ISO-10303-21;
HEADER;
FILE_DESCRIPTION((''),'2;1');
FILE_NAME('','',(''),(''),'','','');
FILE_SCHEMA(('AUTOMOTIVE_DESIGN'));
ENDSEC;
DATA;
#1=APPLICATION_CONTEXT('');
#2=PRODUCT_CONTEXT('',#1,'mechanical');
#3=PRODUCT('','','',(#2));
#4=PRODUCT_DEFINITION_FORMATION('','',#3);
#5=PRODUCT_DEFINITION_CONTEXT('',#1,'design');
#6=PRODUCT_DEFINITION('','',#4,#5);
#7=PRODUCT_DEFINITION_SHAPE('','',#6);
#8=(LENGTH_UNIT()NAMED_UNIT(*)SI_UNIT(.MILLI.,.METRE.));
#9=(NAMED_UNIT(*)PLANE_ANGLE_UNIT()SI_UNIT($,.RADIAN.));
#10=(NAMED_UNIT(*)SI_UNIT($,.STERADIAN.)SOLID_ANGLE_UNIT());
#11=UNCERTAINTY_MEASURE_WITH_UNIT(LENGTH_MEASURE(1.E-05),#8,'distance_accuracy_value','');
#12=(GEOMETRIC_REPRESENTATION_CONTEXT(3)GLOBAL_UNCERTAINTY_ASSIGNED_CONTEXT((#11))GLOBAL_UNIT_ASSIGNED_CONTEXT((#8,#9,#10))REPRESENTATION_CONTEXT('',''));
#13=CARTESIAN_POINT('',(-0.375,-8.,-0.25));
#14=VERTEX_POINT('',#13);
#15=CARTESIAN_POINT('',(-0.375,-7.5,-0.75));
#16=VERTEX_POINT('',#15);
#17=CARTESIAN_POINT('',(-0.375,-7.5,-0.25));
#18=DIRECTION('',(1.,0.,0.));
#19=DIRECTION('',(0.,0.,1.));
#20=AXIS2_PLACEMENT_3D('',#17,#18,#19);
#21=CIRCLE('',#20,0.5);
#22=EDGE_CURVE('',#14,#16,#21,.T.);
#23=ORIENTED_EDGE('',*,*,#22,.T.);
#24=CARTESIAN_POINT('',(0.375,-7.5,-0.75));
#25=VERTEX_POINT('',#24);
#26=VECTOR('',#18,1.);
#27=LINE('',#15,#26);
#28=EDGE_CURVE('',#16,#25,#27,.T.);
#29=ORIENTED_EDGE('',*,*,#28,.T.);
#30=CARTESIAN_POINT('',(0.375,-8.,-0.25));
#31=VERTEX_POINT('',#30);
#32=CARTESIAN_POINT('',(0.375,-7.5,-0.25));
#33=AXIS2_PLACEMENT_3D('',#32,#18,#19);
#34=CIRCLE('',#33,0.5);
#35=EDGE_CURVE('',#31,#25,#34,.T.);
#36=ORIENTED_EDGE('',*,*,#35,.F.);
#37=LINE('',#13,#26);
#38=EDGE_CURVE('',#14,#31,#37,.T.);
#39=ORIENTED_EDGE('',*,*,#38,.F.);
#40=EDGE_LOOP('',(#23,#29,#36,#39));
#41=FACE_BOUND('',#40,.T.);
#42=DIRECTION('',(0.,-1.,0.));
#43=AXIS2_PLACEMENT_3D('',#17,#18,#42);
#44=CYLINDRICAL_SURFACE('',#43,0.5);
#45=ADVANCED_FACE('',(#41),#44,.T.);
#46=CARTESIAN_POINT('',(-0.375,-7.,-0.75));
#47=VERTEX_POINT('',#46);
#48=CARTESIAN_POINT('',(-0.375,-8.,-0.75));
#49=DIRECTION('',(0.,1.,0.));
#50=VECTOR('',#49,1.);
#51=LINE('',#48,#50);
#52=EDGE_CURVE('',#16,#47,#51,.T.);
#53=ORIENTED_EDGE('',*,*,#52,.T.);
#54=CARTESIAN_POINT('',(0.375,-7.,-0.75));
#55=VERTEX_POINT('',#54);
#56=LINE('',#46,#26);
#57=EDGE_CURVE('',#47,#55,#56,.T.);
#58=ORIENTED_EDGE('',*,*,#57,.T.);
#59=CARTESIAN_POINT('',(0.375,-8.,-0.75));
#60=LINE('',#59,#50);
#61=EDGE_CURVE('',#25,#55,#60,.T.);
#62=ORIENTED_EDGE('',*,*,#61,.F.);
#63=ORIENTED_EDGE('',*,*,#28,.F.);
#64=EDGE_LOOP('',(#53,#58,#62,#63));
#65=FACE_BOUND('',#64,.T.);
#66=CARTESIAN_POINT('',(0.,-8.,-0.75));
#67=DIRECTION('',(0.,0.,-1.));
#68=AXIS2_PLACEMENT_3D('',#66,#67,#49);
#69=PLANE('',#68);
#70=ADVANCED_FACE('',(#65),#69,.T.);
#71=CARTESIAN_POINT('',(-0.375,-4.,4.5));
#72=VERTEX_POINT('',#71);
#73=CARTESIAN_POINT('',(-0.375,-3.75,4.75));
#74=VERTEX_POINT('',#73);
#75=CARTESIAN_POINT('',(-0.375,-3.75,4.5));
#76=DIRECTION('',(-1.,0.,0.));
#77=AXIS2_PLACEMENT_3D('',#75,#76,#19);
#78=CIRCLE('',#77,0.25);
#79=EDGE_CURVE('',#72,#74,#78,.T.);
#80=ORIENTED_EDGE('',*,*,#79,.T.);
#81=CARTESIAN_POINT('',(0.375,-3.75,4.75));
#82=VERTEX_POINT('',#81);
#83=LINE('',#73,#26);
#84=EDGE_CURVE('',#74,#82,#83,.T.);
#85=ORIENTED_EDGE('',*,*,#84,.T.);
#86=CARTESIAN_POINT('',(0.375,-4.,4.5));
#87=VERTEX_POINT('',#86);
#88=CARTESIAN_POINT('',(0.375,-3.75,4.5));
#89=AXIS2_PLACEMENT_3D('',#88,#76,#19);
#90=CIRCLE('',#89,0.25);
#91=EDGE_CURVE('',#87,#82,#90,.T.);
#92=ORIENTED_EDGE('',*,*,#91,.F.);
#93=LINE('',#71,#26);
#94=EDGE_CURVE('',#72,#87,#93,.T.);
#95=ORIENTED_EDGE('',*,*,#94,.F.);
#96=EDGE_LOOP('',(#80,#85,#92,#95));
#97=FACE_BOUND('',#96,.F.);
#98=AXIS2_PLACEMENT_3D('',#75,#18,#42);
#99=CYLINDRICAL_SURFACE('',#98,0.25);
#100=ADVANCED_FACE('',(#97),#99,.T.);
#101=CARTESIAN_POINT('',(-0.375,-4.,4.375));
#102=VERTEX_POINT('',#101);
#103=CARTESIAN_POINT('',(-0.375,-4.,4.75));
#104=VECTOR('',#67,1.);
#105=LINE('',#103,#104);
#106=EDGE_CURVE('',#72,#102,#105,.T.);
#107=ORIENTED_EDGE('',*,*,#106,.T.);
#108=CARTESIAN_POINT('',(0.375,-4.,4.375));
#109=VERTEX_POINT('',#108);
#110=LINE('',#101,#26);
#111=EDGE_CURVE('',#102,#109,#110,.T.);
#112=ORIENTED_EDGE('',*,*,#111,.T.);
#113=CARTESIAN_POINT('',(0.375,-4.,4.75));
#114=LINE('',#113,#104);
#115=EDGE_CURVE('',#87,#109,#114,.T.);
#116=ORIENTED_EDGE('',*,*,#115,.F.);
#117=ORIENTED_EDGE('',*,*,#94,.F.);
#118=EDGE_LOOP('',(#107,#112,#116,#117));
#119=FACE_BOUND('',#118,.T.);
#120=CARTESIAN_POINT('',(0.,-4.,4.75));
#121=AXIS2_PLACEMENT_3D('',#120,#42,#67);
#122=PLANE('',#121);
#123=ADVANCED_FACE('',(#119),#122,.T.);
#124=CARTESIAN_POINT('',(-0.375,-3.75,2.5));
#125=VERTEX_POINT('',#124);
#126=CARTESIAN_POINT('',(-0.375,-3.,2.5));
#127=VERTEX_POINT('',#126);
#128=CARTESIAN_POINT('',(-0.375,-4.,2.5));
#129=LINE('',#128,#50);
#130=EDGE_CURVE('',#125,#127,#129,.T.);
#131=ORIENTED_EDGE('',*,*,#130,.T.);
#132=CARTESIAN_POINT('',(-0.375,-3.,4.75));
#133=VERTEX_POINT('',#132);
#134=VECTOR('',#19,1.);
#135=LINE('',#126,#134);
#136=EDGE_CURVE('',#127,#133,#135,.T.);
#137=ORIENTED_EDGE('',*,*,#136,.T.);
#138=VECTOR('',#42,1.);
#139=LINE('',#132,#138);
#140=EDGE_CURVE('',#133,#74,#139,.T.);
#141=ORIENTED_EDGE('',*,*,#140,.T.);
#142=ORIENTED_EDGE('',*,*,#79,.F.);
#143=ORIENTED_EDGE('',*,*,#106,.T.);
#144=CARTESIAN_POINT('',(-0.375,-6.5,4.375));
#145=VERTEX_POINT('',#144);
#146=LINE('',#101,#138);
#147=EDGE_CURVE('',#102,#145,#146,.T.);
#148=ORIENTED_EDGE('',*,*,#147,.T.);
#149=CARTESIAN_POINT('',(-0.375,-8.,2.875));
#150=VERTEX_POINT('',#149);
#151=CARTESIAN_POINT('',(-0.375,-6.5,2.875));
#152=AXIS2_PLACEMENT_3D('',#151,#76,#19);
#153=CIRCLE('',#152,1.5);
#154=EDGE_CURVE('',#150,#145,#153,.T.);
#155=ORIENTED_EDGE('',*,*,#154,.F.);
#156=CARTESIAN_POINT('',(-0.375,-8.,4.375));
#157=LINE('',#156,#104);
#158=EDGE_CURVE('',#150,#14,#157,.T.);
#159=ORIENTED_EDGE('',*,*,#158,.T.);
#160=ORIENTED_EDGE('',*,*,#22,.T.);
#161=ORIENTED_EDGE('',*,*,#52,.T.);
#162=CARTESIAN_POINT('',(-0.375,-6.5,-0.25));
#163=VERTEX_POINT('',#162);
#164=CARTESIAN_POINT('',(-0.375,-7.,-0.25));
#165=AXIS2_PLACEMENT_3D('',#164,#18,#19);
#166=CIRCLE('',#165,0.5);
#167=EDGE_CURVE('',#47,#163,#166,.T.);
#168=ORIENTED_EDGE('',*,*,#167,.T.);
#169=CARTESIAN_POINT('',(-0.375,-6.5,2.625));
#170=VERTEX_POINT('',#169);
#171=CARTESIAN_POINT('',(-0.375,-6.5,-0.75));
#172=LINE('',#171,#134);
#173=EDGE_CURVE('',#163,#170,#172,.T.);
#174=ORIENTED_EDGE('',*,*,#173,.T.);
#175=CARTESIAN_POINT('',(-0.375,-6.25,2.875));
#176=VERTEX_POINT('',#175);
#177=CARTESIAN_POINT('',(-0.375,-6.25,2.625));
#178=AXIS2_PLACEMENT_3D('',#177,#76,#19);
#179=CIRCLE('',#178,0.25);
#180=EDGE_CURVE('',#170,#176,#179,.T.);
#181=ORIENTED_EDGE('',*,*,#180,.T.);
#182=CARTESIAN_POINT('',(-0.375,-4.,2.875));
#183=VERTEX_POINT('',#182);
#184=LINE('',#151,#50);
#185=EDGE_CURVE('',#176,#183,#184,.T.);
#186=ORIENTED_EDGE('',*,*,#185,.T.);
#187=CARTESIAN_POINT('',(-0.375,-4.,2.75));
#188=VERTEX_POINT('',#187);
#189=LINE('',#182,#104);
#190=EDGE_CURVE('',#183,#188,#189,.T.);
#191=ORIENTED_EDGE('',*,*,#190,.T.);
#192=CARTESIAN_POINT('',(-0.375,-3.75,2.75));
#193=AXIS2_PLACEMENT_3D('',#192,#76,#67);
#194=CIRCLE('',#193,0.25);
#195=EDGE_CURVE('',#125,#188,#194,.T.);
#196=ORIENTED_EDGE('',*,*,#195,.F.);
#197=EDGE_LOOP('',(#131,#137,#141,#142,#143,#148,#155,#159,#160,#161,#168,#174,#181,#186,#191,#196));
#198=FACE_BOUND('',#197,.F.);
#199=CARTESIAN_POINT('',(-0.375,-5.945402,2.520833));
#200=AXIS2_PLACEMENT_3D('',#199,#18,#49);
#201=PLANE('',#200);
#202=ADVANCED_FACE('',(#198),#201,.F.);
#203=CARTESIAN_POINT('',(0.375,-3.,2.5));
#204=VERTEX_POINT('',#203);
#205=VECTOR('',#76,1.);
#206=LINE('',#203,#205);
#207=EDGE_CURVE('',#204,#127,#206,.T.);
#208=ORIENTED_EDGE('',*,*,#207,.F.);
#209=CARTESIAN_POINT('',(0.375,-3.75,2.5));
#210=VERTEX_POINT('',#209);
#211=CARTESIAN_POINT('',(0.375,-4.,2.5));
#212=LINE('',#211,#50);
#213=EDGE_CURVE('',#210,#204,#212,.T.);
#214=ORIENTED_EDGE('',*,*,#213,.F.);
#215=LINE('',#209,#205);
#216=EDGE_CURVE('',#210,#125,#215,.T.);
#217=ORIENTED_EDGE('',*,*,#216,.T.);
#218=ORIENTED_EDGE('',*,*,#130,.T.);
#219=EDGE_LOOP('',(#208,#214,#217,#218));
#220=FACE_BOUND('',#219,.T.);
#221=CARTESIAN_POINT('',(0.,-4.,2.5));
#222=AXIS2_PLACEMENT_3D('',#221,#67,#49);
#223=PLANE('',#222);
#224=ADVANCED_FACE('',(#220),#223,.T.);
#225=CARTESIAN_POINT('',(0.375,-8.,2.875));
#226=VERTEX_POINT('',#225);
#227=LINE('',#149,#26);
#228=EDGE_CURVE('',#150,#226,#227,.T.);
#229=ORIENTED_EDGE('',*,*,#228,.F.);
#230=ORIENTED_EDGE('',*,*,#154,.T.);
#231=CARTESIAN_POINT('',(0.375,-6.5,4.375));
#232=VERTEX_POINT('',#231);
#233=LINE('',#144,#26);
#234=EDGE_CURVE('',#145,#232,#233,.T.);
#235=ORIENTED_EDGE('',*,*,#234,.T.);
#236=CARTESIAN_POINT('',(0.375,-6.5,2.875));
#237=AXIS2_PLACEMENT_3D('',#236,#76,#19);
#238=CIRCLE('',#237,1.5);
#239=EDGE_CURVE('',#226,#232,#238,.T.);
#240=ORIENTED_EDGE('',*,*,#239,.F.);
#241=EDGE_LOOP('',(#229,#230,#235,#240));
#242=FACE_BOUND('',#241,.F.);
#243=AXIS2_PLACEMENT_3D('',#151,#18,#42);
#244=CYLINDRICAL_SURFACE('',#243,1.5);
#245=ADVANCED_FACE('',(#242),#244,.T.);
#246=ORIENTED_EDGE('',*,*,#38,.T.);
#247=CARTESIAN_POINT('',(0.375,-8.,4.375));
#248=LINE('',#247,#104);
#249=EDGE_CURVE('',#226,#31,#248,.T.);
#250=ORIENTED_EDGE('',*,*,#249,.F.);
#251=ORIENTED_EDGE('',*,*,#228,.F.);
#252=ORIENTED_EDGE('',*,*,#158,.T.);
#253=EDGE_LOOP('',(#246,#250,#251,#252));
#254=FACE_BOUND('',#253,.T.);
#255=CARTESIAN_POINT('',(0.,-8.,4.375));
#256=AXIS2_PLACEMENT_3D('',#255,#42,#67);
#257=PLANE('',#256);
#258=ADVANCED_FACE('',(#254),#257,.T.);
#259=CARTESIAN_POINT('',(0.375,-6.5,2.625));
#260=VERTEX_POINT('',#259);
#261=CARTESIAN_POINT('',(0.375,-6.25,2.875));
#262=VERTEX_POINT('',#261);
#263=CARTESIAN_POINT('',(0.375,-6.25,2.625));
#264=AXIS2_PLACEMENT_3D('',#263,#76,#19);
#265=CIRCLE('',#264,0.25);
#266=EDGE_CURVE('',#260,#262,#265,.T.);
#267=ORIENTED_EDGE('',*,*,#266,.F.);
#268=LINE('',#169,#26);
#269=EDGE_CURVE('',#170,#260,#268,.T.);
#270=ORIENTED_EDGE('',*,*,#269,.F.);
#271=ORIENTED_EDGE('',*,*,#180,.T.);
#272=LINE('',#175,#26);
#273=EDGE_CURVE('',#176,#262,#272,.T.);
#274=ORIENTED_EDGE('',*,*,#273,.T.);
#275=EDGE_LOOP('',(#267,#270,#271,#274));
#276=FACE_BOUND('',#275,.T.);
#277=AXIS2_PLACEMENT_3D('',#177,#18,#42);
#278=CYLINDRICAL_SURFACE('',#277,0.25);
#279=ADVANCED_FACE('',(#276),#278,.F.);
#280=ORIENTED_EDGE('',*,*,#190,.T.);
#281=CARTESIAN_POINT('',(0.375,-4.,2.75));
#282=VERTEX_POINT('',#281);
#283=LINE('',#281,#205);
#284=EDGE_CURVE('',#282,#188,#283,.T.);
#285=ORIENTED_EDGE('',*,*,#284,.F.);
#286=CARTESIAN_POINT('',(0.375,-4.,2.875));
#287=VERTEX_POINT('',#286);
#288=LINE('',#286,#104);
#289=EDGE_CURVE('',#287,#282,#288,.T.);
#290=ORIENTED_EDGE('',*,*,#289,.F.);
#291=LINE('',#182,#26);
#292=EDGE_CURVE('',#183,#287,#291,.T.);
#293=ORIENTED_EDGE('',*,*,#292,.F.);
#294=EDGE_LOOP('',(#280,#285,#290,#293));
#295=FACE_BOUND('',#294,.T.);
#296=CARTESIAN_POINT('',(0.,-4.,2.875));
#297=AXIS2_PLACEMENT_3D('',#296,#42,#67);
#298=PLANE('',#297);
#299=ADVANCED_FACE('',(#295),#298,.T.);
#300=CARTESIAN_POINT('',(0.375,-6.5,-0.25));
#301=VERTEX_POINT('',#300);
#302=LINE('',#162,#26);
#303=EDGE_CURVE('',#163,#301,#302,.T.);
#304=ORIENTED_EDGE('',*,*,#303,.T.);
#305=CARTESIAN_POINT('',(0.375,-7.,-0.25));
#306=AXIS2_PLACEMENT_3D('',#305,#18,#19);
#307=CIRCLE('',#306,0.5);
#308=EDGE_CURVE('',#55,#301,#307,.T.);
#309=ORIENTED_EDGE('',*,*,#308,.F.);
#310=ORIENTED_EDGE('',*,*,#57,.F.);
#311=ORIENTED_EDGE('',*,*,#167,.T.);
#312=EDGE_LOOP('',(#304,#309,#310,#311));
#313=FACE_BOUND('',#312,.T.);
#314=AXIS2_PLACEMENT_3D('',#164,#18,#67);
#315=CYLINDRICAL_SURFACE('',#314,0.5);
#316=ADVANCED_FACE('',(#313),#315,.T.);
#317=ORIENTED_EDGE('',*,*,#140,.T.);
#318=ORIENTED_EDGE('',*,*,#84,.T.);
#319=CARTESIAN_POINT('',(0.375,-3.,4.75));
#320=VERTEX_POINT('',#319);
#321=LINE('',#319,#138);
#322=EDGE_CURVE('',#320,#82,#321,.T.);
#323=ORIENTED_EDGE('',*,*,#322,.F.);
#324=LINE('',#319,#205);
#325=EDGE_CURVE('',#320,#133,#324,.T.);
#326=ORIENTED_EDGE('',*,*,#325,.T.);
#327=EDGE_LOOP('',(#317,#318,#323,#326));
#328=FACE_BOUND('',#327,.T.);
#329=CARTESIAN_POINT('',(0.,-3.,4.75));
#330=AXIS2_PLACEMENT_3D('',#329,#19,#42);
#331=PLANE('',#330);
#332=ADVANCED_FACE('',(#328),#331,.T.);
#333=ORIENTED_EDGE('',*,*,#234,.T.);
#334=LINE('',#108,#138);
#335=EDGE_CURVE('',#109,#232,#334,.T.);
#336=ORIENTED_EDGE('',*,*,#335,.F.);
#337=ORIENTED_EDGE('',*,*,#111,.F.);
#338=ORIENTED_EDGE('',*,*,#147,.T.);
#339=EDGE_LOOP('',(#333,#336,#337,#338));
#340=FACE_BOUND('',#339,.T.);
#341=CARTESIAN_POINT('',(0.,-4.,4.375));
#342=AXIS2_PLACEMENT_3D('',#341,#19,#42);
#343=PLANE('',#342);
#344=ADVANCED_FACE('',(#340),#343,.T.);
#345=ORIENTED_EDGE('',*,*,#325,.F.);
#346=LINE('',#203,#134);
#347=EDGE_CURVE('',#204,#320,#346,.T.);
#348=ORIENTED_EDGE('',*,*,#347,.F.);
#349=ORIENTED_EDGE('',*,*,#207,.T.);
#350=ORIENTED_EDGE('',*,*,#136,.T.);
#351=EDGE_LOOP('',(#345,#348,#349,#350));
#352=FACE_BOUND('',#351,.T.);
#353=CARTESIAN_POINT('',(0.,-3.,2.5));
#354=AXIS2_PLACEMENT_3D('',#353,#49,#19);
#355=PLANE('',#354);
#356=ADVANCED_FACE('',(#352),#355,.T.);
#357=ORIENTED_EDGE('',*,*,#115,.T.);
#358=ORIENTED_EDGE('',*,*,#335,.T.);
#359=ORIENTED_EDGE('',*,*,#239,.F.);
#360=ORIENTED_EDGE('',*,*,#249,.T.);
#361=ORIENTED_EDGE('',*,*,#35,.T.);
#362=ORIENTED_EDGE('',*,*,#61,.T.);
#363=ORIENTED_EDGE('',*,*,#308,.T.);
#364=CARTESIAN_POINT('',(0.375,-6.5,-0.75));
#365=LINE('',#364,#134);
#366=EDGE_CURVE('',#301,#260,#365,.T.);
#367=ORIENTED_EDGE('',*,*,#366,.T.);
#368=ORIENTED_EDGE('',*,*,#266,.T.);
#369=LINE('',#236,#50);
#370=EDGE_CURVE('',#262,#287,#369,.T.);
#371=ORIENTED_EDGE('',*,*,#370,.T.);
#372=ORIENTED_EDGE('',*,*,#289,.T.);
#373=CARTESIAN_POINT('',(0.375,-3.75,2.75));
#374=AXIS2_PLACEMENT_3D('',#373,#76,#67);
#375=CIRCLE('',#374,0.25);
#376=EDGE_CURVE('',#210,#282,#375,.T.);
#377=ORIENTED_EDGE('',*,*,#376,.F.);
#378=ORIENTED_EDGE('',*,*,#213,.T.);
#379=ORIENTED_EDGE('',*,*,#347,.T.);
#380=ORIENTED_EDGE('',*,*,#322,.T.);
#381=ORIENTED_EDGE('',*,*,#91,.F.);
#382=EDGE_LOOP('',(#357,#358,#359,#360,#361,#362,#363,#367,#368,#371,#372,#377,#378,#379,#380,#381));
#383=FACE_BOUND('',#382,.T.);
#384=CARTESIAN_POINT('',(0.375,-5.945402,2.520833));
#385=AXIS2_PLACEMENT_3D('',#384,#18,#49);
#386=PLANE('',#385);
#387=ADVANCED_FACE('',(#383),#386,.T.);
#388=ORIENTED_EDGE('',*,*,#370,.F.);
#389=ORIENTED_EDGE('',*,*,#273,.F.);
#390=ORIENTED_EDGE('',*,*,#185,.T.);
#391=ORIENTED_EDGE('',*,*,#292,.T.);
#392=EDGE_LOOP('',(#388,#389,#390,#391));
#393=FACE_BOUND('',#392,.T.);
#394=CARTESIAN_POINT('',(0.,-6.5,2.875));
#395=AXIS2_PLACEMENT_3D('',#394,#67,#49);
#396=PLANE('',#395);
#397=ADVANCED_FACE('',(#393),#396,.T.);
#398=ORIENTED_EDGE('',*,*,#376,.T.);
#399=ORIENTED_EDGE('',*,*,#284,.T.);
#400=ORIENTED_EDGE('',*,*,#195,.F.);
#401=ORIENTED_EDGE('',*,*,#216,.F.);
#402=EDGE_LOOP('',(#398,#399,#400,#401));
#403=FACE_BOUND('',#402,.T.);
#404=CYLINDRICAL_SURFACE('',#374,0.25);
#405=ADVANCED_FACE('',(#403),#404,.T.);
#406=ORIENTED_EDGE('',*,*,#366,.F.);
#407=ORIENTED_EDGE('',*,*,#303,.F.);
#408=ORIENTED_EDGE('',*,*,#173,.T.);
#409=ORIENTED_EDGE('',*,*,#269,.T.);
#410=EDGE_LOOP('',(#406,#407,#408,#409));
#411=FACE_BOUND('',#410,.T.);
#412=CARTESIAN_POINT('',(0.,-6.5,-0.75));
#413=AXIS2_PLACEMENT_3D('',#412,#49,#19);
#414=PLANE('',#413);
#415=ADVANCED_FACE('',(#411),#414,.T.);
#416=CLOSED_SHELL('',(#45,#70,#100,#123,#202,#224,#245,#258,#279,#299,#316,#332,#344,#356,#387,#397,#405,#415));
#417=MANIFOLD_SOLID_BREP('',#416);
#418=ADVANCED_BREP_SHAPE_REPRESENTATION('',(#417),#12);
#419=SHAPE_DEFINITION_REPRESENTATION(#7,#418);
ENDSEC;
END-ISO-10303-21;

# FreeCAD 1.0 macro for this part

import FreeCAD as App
import Part
import Sketcher

V = App.Vector
Q = App.Units.Quantity


def edges_at(feature, points):
    """Names of the edges that pass closest to the given points."""
    edges = feature.Shape.Edges
    near = lambda p: min(range(len(edges)), key=lambda i: edges[i].distToShape(Part.Vertex(*p))[0])
    return sorted({f"Edge{near(p) + 1}" for p in points})


def add_polygon(sketch, points):
    """Adds a closed chain of lines whose ends are joined by coincident constraints."""
    first, n = sketch.GeometryCount, len(points)
    for a, b in zip(points, points[1:] + points[:1]):
        sketch.addGeometry(Part.LineSegment(App.Vector(*a, 0), App.Vector(*b, 0)), False)
    for i in range(n):
        sketch.addConstraint(Sketcher.Constraint("Coincident", first + i, 2, first + (i + 1) % n, 1))

doc = App.newDocument("Part")
params = doc.addObject("Spreadsheet::Sheet", "Params")
for row, (alias, value) in enumerate([
    ("sketch1_width", "1 mm"),
    ("sketch1_width2", "4 mm"),
    ("sketch1_width3", "1.5 mm"),
    ("sketch1_height", "2.25 mm"),
    ("pad1_length", "0.75 mm"),
    ("fillet_radius", "1.5 mm"),
    ("fillet2_radius", "0.25 mm"),
    ("fillet3_radius", "0.5 mm"),
], start=1):
    params.set(f"A{row}", alias)
    params.set(f"B{row}", "=" + value)
    params.setAlias(f"B{row}", alias)

body = doc.addObject("PartDesign::Body", "Body")

sketch1 = body.newObject("Sketcher::SketchObject", "Sketch")
sketch1.AttachmentSupport = (doc.getObject("YZ_Plane"), [""])
sketch1.MapMode = "FlatFace"
add_polygon(sketch1, [(-3, 4.75), (-4, 4.75), (-4, 4.375), (-8, 4.375), (-8, -0.75), (-6.5, -0.75), (-6.5, 2.875), (-4, 2.875), (-4, 2.5), (-3, 2.5)])
sketch1.addConstraint([
    Sketcher.Constraint("Horizontal", 0),
    Sketcher.Constraint("Vertical", 1),
    Sketcher.Constraint("Horizontal", 2),
    Sketcher.Constraint("Vertical", 3),
    Sketcher.Constraint("Horizontal", 4),
    Sketcher.Constraint("Vertical", 5),
    Sketcher.Constraint("Horizontal", 6),
    Sketcher.Constraint("Vertical", 7),
    Sketcher.Constraint("Horizontal", 8),
    Sketcher.Constraint("Vertical", 9),
    Sketcher.Constraint("Vertical", 1, 2, 6, 2),
    Sketcher.Constraint("Equal", 1, 7),
    Sketcher.Constraint("DistanceX", 0, 2, 0, 1, Q("1 mm")),
    Sketcher.Constraint("DistanceX", 2, 2, 2, 1, Q("4 mm")),
    Sketcher.Constraint("DistanceX", 4, 1, 4, 2, Q("1.5 mm")),
    Sketcher.Constraint("DistanceX", 0, 2, -1, 1, Q("4 mm")),
    Sketcher.Constraint("DistanceY", 9, 1, 9, 2, Q("2.25 mm")),
    Sketcher.Constraint("DistanceY", -1, 1, 7, 2, Q("2.5 mm")),
    Sketcher.Constraint("DistanceY", 3, 2, 0, 2, Q("5.5 mm")),
    Sketcher.Constraint("DistanceY", 5, 2, 2, 2, Q("1.5 mm")),
])
sketch1.setExpression("Constraints[22]", "Params.sketch1_width")
sketch1.setExpression("Constraints[23]", "Params.sketch1_width2")
sketch1.setExpression("Constraints[24]", "Params.sketch1_width3")
sketch1.setExpression("Constraints[26]", "Params.sketch1_height")
pad1 = body.newObject("PartDesign::Pad", "Pad")
pad1.Profile = sketch1
pad1.setExpression("Length", "Params.pad1_length")
pad1.Midplane = True
doc.recompute()

fillet = body.newObject("PartDesign::Fillet", "Fillet")
fillet.Base = (pad1, edges_at(pad1, [(0, -8, 4.375)]))
fillet.setExpression("Radius", "Params.fillet_radius")
doc.recompute()

fillet2 = body.newObject("PartDesign::Fillet", "Fillet001")
fillet2.Base = (fillet, edges_at(fillet, [(0, -4, 4.75), (0, -4, 2.5), (0, -6.5, 2.875)]))
fillet2.setExpression("Radius", "Params.fillet2_radius")
doc.recompute()

fillet3 = body.newObject("PartDesign::Fillet", "Fillet002")
fillet3.Base = (fillet2, edges_at(fillet2, [(0, -8, -0.75), (0, -6.5, -0.75)]))
fillet3.setExpression("Radius", "Params.fillet3_radius")

doc.recompute()
